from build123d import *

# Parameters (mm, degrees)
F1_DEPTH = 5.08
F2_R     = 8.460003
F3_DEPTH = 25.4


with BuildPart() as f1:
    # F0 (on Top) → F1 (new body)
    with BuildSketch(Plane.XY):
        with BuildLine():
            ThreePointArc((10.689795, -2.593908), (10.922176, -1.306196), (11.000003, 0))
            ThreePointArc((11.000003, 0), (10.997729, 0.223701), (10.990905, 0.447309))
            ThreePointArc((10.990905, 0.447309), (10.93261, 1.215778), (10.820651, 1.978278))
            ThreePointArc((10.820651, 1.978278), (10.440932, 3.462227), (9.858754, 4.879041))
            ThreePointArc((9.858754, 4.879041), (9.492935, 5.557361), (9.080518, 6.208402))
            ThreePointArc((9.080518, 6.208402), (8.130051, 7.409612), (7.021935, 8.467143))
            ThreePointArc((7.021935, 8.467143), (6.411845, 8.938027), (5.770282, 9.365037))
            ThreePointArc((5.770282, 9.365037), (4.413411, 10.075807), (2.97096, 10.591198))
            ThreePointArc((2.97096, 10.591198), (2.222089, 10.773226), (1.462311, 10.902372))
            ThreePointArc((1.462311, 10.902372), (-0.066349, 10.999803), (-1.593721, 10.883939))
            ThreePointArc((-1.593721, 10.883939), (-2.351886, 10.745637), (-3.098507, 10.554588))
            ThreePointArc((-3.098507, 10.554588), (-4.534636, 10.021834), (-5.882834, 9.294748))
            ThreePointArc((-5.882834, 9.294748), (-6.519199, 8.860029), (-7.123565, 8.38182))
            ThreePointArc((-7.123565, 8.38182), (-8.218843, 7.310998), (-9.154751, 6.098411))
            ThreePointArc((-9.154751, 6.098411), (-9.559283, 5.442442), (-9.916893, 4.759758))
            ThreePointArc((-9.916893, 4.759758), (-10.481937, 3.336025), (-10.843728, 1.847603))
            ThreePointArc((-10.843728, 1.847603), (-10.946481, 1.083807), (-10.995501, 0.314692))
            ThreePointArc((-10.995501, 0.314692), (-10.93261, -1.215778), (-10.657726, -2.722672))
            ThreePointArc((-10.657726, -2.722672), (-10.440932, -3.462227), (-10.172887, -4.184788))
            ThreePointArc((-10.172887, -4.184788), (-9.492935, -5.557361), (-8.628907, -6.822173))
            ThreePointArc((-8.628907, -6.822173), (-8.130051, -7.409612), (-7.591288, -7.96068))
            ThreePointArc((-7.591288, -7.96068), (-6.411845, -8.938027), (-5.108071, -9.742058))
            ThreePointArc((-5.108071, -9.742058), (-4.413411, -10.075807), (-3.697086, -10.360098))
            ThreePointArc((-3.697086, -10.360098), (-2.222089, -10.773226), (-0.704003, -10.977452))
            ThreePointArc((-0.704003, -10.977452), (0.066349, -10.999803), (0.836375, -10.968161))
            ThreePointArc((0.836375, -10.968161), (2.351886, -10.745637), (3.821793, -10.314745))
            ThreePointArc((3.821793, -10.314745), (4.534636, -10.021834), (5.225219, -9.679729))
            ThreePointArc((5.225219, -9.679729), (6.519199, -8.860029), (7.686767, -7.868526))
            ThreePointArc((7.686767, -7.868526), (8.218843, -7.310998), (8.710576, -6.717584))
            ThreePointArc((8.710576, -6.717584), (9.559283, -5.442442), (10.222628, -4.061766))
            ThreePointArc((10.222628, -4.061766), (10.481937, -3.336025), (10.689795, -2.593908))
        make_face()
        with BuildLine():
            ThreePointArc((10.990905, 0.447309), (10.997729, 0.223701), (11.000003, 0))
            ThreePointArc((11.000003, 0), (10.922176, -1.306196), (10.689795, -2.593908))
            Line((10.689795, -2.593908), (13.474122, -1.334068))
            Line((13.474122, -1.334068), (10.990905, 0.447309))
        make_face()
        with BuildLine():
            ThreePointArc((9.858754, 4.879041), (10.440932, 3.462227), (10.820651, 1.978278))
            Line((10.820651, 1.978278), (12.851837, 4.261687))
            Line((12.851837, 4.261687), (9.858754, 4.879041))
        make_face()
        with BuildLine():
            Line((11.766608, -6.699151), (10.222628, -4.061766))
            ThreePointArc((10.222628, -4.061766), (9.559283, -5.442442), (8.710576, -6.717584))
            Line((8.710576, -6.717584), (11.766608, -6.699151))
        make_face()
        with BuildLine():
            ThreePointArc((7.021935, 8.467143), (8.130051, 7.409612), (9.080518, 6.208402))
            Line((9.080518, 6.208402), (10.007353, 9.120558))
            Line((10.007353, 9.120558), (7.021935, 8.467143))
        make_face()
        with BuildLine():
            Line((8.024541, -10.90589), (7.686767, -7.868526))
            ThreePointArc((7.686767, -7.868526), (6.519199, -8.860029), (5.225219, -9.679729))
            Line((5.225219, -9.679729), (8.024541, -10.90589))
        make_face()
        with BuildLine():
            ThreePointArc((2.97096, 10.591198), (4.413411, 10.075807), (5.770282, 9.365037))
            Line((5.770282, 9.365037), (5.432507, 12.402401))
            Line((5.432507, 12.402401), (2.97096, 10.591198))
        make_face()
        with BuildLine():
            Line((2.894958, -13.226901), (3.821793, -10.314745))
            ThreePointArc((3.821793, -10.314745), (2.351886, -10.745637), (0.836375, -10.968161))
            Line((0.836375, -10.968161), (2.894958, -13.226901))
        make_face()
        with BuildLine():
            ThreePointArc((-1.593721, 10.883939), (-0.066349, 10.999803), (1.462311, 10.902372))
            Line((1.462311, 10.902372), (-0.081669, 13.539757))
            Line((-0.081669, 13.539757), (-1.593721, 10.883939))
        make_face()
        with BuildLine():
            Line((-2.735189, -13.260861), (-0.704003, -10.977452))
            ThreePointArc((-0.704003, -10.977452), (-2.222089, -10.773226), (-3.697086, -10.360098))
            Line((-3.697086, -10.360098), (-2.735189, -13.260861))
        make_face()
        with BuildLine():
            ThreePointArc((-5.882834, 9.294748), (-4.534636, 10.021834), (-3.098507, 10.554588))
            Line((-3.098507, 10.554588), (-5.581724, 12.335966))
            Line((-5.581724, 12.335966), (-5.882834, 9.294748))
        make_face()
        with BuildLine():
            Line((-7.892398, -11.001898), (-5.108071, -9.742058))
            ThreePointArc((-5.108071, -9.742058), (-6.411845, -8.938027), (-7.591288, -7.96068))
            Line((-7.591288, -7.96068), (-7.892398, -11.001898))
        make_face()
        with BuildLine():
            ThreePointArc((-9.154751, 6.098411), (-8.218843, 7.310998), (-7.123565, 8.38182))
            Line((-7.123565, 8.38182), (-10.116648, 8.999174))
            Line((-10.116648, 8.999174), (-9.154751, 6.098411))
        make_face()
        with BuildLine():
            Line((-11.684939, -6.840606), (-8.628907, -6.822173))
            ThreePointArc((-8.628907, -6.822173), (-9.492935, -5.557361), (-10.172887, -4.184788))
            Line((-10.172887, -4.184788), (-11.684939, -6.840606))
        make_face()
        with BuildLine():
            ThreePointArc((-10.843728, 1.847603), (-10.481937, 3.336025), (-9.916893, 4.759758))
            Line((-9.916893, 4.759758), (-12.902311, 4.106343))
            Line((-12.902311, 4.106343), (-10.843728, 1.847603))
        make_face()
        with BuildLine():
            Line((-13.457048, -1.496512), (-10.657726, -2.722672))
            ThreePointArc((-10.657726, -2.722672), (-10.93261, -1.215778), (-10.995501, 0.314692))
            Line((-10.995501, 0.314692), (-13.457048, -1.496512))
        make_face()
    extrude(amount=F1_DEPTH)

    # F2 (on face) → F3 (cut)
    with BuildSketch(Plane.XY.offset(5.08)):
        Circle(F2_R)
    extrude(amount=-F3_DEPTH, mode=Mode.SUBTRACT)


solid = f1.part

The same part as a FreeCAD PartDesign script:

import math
import FreeCAD as App
import Part
import Sketcher
from FreeCAD import Vector
Q = App.Units.Quantity

doc = App.newDocument("Part")
params = doc.addObject("Spreadsheet::Sheet", "Params")
for row, (alias, value) in enumerate([
    ("pad1_length", "0.2 in"),
    ("pocket1_length", "1 in"),
], start=1):
    params.set(f"A{row}", alias)
    params.set(f"B{row}", "=" + value)
    params.setAlias(f"B{row}", alias)

body = doc.addObject("PartDesign::Body", "Body")

# Sketch on XY plane
sketch1 = body.newObject("Sketcher::SketchObject", "Sketch")
sketch1.AttachmentSupport = (doc.getObject("XY_Plane"), [""])
sketch1.MapMode = "FlatFace"
sketch1.addGeometry([
    Part.ArcOfCircle(Part.Circle(Vector(0.000048, 0.000003, 0), Vector(0, 0, 1), 10.999956), math.radians(2.330536), math.radians(10.360666)),  # 0
    Part.LineSegment(Vector(10.820651, 1.978278, 0), Vector(12.851837, 4.261687, 0)),  # 1
    Part.LineSegment(Vector(12.851837, 4.261687, 0), Vector(9.858754, 4.879041, 0)),  # 2
    Part.ArcOfCircle(Part.Circle(Vector(0.000148, 0.000083, 0), Vector(0, 0, 1), 10.999834), math.radians(26.330498), math.radians(34.360716)),  # 3
    Part.LineSegment(Vector(9.080518, 6.208402, 0), Vector(10.007353, 9.120558, 0)),  # 4
    Part.LineSegment(Vector(10.007353, 9.120558, 0), Vector(7.021935, 8.467143, 0)),  # 5
    Part.ArcOfCircle(Part.Circle(Vector(0.000066, 0.000087, 0), Vector(0, 0, 1), 10.999894), math.radians(50.330524), math.radians(58.360692)),  # 6
    Part.LineSegment(Vector(5.770282, 9.365037, 0), Vector(5.432507, 12.402401, 0)),  # 7
    Part.LineSegment(Vector(5.432507, 12.402401, 0), Vector(2.97096, 10.591198, 0)),  # 8
    Part.ArcOfCircle(Part.Circle(Vector(0.00002, 0.00008, 0), Vector(0, 0, 1), 10.999922), math.radians(74.330532), math.radians(82.360684)),  # 9
    Part.LineSegment(Vector(1.462311, 10.902372, 0), Vector(-0.081669, 13.539757, 0)),  # 10
    Part.LineSegment(Vector(-0.081669, 13.539757, 0), Vector(-1.593721, 10.883939, 0)),  # 11
    Part.ArcOfCircle(Part.Circle(Vector(-0.000032, 0.000148, 0), Vector(0, 0, 1), 10.999853), math.radians(98.330491), math.radians(106.360697)),  # 12
    Part.LineSegment(Vector(-3.098507, 10.554588, 0), Vector(-5.581724, 12.335966, 0)),  # 13
    Part.LineSegment(Vector(-5.581724, 12.335966, 0), Vector(-5.882834, 9.294748, 0)),  # 14
    Part.ArcOfCircle(Part.Circle(Vector(0.000119, -0.000167, 0), Vector(0, 0, 1), 11.000208), math.radians(122.330607), math.radians(130.36055)),  # 15
    Part.LineSegment(Vector(-7.123565, 8.38182, 0), Vector(-10.116648, 8.999174, 0)),  # 16
    Part.LineSegment(Vector(-10.116648, 8.999174, 0), Vector(-9.154751, 6.098411, 0)),  # 17
    Part.ArcOfCircle(Part.Circle(Vector(0.000106, -0.000053, 0), Vector(0, 0, 1), 11.000121), math.radians(146.330622), math.radians(154.360631)),  # 18
    Part.LineSegment(Vector(-9.916893, 4.759758, 0), Vector(-12.902311, 4.106343, 0)),  # 19
    Part.LineSegment(Vector(-12.902311, 4.106343, 0), Vector(-10.843728, 1.847603, 0)),  # 20
    Part.ArcOfCircle(Part.Circle(Vector(-0.000191, 0.000019, 0), Vector(0, 0, 1), 10.999812), math.radians(170.330476), math.radians(178.360709)),  # 21
    Part.LineSegment(Vector(-10.995501, 0.314692, 0), Vector(-13.457048, -1.496512, 0)),  # 22
    Part.LineSegment(Vector(-13.457048, -1.496512, 0), Vector(-10.657726, -2.722672, 0)),  # 23
    Part.ArcOfCircle(Part.Circle(Vector(-0.000059, -0.000024, 0), Vector(0, 0, 1), 10.99994), math.radians(-165.669502), math.radians(-157.639362)),  # 24
    Part.LineSegment(Vector(-10.172887, -4.184788, 0), Vector(-11.684939, -6.840606, 0)),  # 25
    Part.LineSegment(Vector(-11.684939, -6.840606, 0), Vector(-8.628907, -6.822173, 0)),  # 26
    Part.ArcOfCircle(Part.Circle(Vector(0.00001, 0.00001, 0), Vector(0, 0, 1), 11.000018), math.radians(-141.669447), math.radians(-133.639364)),  # 27
    Part.LineSegment(Vector(-7.591288, -7.96068, 0), Vector(-7.892398, -11.001898, 0)),  # 28
    Part.LineSegment(Vector(-7.892398, -11.001898, 0), Vector(-5.108071, -9.742058, 0)),  # 29
    Part.ArcOfCircle(Part.Circle(Vector(-0.000031, -0.000065, 0), Vector(0, 0, 1), 10.999931), math.radians(-117.669466), math.radians(-109.639319)),  # 30
    Part.LineSegment(Vector(-3.697086, -10.360098, 0), Vector(-2.735189, -13.260861, 0)),  # 31
    Part.LineSegment(Vector(-2.735189, -13.260861, 0), Vector(-0.704003, -10.977452, 0)),  # 32
    Part.ArcOfCircle(Part.Circle(Vector(0.000001, 0.000139, 0), Vector(0, 0, 1), 11.000142), math.radians(-93.669412), math.radians(-85.639422)),  # 33
    Part.LineSegment(Vector(0.836375, -10.968161, 0), Vector(2.894958, -13.226901, 0)),  # 34
    Part.LineSegment(Vector(2.894958, -13.226901, 0), Vector(3.821793, -10.314745, 0)),  # 35
    Part.ArcOfCircle(Part.Circle(Vector(0.000105, -0.000232, 0), Vector(0, 0, 1), 10.999749), math.radians(-69.669548), math.radians(-61.639271)),  # 36
    Part.LineSegment(Vector(5.225219, -9.679729, 0), Vector(8.024541, -10.90589, 0)),  # 37
    Part.LineSegment(Vector(8.024541, -10.90589, 0), Vector(7.686767, -7.868526, 0)),  # 38
    Part.ArcOfCircle(Part.Circle(Vector(-0.000096, 0.000077, 0), Vector(0, 0, 1), 11.000127), math.radians(-45.669376), math.radians(-37.639372)),  # 39
    Part.LineSegment(Vector(8.710576, -6.717584, 0), Vector(11.766608, -6.699151, 0)),  # 40
    Part.LineSegment(Vector(11.766608, -6.699151, 0), Vector(10.222628, -4.061766, 0)),  # 41
    Part.ArcOfCircle(Part.Circle(Vector(-0.000087, 0.000031, 0), Vector(0, 0, 1), 11.000095), math.radians(-21.669436), math.radians(-13.639409)),  # 42
    Part.LineSegment(Vector(10.689795, -2.593908, 0), Vector(13.474122, -1.334068, 0)),  # 43
    Part.LineSegment(Vector(13.474122, -1.334068, 0), Vector(10.990905, 0.447309, 0)),  # 44
], False)
sketch1.addConstraint([
    Sketcher.Constraint("Coincident", 0, 2, 1, 1),
    Sketcher.Constraint("Coincident", 1, 2, 2, 1),
    Sketcher.Constraint("Coincident", 2, 2, 3, 1),
    Sketcher.Constraint("Coincident", 3, 2, 4, 1),
    Sketcher.Constraint("Coincident", 4, 2, 5, 1),
    Sketcher.Constraint("Coincident", 5, 2, 6, 1),
    Sketcher.Constraint("Coincident", 6, 2, 7, 1),
    Sketcher.Constraint("Coincident", 7, 2, 8, 1),
    Sketcher.Constraint("Coincident", 8, 2, 9, 1),
    Sketcher.Constraint("Coincident", 9, 2, 10, 1),
    Sketcher.Constraint("Coincident", 10, 2, 11, 1),
    Sketcher.Constraint("Coincident", 11, 2, 12, 1),
    Sketcher.Constraint("Coincident", 12, 2, 13, 1),
    Sketcher.Constraint("Coincident", 13, 2, 14, 1),
    Sketcher.Constraint("Coincident", 14, 2, 15, 1),
    Sketcher.Constraint("Coincident", 15, 2, 16, 1),
    Sketcher.Constraint("Coincident", 16, 2, 17, 1),
    Sketcher.Constraint("Coincident", 17, 2, 18, 1),
    Sketcher.Constraint("Coincident", 18, 2, 19, 1),
    Sketcher.Constraint("Coincident", 19, 2, 20, 1),
    Sketcher.Constraint("Coincident", 20, 2, 21, 1),
    Sketcher.Constraint("Coincident", 21, 2, 22, 1),
    Sketcher.Constraint("Coincident", 22, 2, 23, 1),
    Sketcher.Constraint("Coincident", 23, 2, 24, 1),
    Sketcher.Constraint("Coincident", 24, 2, 25, 1),
    Sketcher.Constraint("Coincident", 25, 2, 26, 1),
    Sketcher.Constraint("Coincident", 26, 2, 27, 1),
    Sketcher.Constraint("Coincident", 27, 2, 28, 1),
    Sketcher.Constraint("Coincident", 28, 2, 29, 1),
    Sketcher.Constraint("Coincident", 29, 2, 30, 1),
    Sketcher.Constraint("Coincident", 30, 2, 31, 1),
    Sketcher.Constraint("Coincident", 31, 2, 32, 1),
    Sketcher.Constraint("Coincident", 32, 2, 33, 1),
    Sketcher.Constraint("Coincident", 33, 2, 34, 1),
    Sketcher.Constraint("Coincident", 34, 2, 35, 1),
    Sketcher.Constraint("Coincident", 35, 2, 36, 1),
    Sketcher.Constraint("Coincident", 36, 2, 37, 1),
    Sketcher.Constraint("Coincident", 37, 2, 38, 1),
    Sketcher.Constraint("Coincident", 38, 2, 39, 1),
    Sketcher.Constraint("Coincident", 39, 2, 40, 1),
    Sketcher.Constraint("Coincident", 40, 2, 41, 1),
    Sketcher.Constraint("Coincident", 41, 2, 42, 1),
    Sketcher.Constraint("Coincident", 42, 2, 43, 1),
    Sketcher.Constraint("Coincident", 43, 2, 44, 1),
    Sketcher.Constraint("Coincident", 44, 2, 0, 1),
    Sketcher.Constraint("PointOnObject", 33, 3, -2),
    Sketcher.Constraint("Radius", 9, 10.999922),
    Sketcher.Constraint("Radius", 18, 11.000121),
    Sketcher.Constraint("Radius", 24, 10.99994),
    Sketcher.Constraint("Radius", 30, 10.999931),
    Sketcher.Constraint("Radius", 36, 10.999749),
    Sketcher.Constraint("Radius", 0, 10.999956),
    Sketcher.Constraint("Radius", 3, 10.999834),
    Sketcher.Constraint("Radius", 6, 10.999894),
    Sketcher.Constraint("Radius", 12, 10.999853),
    Sketcher.Constraint("Radius", 15, 11.000208),
    Sketcher.Constraint("Radius", 21, 10.999812),
    Sketcher.Constraint("Radius", 27, 11.000018),
    Sketcher.Constraint("Radius", 33, 11.000142),
    Sketcher.Constraint("Radius", 39, 11.000127),
    Sketcher.Constraint("Radius", 42, 11.000095),
    Sketcher.Constraint("DistanceY", 14, 2, 12, 2, Q("0.0496 in")),
    Sketcher.Constraint("DistanceY", 28, 2, 29, 2, Q("0.0496 in")),
    Sketcher.Constraint("DistanceY", 42, 2, 43, 2, Q("0.0496 in")),
    Sketcher.Constraint("DistanceY", -1, 1, 3, 2, 6.208402),
    Sketcher.Constraint("DistanceY", -1, 1, 7, 2, 12.402401),
    Sketcher.Constraint("DistanceX", 21, 2, -1, 1, 10.995501),
    Sketcher.Constraint("DistanceY", 28, 2, -1, 1, 11.001898),
    Sketcher.Constraint("DistanceY", 30, 2, -1, 1, 10.360098),
    Sketcher.Constraint("DistanceY", 34, 2, -1, 1, 13.226901),
    Sketcher.Constraint("DistanceX", 0, 3, 3, 3, 0.0001),
    Sketcher.Constraint("DistanceY", 24, 3, 39, 3, 0.000102),
    Sketcher.Constraint("DistanceY", 6, 3, 1, 2, 4.2616),
    Sketcher.Constraint("DistanceX", 2, 2, 4, 2, 0.148599),
    Sketcher.Constraint("DistanceX", 5, 2, 1, 2, 5.829902),
    Sketcher.Constraint("DistanceY", 25, 2, 21, 2, 7.155298),
    Sketcher.Constraint("DistanceY", 26, 2, 23, 2, 4.099501),
    Sketcher.Constraint("DistanceX", 24, 2, 27, 2, 2.581599),
    Sketcher.Constraint("DistanceX", 27, 2, 30, 2, 3.894202),
    Sketcher.Constraint("DistanceX", 27, 2, 31, 2, 4.856099),
    Sketcher.Constraint("DistanceY", 31, 2, 33, 2, 2.2927),
    Sketcher.Constraint("DistanceY", 41, 2, 43, 2, 2.727698),
    Sketcher.Constraint("Distance", 4, 3.056088),
    Sketcher.Constraint("Distance", 10, 3.056088),
    Sketcher.Constraint("Distance", 13, 3.056088),
    Sketcher.Constraint("Distance", 14, 3.056088),
    Sketcher.Constraint("Distance", 28, 3.056088),
    Sketcher.Constraint("Distance", 35, 3.056088),
    Sketcher.Constraint("Distance", 37, 3.056088),
    Sketcher.Constraint("Distance", 41, 3.056088),
    Sketcher.Constraint("DistanceX", -1, 1, 3, 3, 0.000148),
    Sketcher.Constraint("DistanceX", -1, 1, 15, 3, 0.000119),
    Sketcher.Constraint("DistanceX", 21, 3, -1, 1, 0.000191),
    Sketcher.Constraint("DistanceY", -1, 1, 33, 3, 0.000139),
    Sketcher.Constraint("DistanceY", 36, 3, -1, 1, 0.000232),
    Sketcher.Constraint("DistanceX", -1, 1, 0, 2, 10.820651),
    Sketcher.Constraint("DistanceY", -1, 1, 2, 2, 4.879041),
    Sketcher.Constraint("DistanceY", -1, 1, 4, 2, 9.120558),
    Sketcher.Constraint("DistanceX", -1, 1, 6, 2, 5.770282),
    Sketcher.Constraint("DistanceX", -1, 1, 8, 2, 2.97096),
    Sketcher.Constraint("DistanceX", -1, 1, 9, 2, 1.462311),
    Sketcher.Constraint("DistanceY", -1, 1, 9, 2, 10.902372),
    Sketcher.Constraint("DistanceX", 10, 2, -1, 1, 0.081669),
    Sketcher.Constraint("DistanceX", 11, 2, -1, 1, 1.593721),
    Sketcher.Constraint("DistanceY", -1, 1, 11, 2, 10.883939),
    Sketcher.Constraint("DistanceY", -1, 1, 15, 2, 8.38182),
    Sketcher.Constraint("DistanceX", 17, 2, -1, 1, 9.154751),
    Sketcher.Constraint("DistanceY", -1, 1, 17, 2, 6.098411),
    Sketcher.Constraint("DistanceY", -1, 1, 18, 2, 4.759758),
    Sketcher.Constraint("DistanceX", 19, 2, -1, 1, 12.902311),
    Sketcher.Constraint("DistanceY", 24, 2, -1, 1, 4.184788),
    Sketcher.Constraint("DistanceX", 25, 2, -1, 1, 11.684939),
    Sketcher.Constraint("DistanceY", 27, 2, -1, 1, 7.96068),
    Sketcher.Constraint("DistanceX", 29, 2, -1, 1, 5.108071),
    Sketcher.Constraint("DistanceX", 31, 2, -1, 1, 2.735189),
    Sketcher.Constraint("DistanceY", 31, 2, -1, 1, 13.260861),
    Sketcher.Constraint("DistanceX", -1, 1, 36, 2, 5.225219),
    Sketcher.Constraint("DistanceY", 36, 2, -1, 1, 9.679729),
    Sketcher.Constraint("DistanceX", -1, 1, 37, 2, 8.024541),
    Sketcher.Constraint("DistanceY", 40, 2, -1, 1, 6.699151),
    Sketcher.Constraint("DistanceY", -1, 1, 44, 2, 0.447309),
    Sketcher.Constraint("DistanceX", 9, 3, 3, 3, 0.000128),
    Sketcher.Constraint("DistanceX", 12, 3, 3, 3, 0.00018),
    Sketcher.Constraint("DistanceY", 15, 3, 0, 3, 0.00017),
    Sketcher.Constraint("DistanceY", 15, 3, 3, 3, 0.00025),
    Sketcher.Constraint("DistanceY", 18, 3, 6, 3, 0.00014),
    Sketcher.Constraint("DistanceY", 21, 3, 12, 3, 0.000129),
    Sketcher.Constraint("DistanceY", 24, 3, 6, 3, 0.000111),
    Sketcher.Constraint("DistanceY", 27, 3, 33, 3, 0.00013),
    Sketcher.Constraint("DistanceY", 36, 3, 18, 3, 0.000179),
    Sketcher.Constraint("DistanceX", 3, 3, 1, 2, 12.851689),
    Sketcher.Constraint("DistanceX", 6, 3, 1, 2, 12.851771),
    Sketcher.Constraint("DistanceX", 7, 2, 3, 2, 3.648011),
    Sketcher.Constraint("DistanceY", 12, 2, 11, 2, 0.329351),
    Sketcher.Constraint("DistanceX", 16, 2, 12, 2, 7.018141),
    Sketcher.Constraint("DistanceY", 19, 2, 16, 2, 4.892831),
    Sketcher.Constraint("DistanceY", 20, 2, 19, 2, 2.25874),
    Sketcher.Constraint("DistanceX", 20, 2, 16, 2, 0.72708),
    Sketcher.Constraint("DistanceX", 22, 2, 20, 2, 2.61332),
    Sketcher.Constraint("DistanceY", 22, 2, 18, 2, 6.25627),
    Sketcher.Constraint("DistanceY", 23, 2, 22, 2, 1.22616),
    Sketcher.Constraint("DistanceY", 31, 2, 32, 2, 2.283409),
    Sketcher.Constraint("DistanceX", 32, 2, 34, 2, 3.598961),
    Sketcher.Constraint("DistanceX", 36, 2, 38, 2, 2.461548),
    Sketcher.Constraint("DistanceY", 35, 2, 38, 2, 2.446219),
    Sketcher.Constraint("DistanceX", 38, 2, 39, 2, 1.023809),
    Sketcher.Constraint("DistanceX", 39, 2, 40, 2, 3.056032),
    Sketcher.Constraint("DistanceX", 39, 2, 41, 2, 1.512052),
    Sketcher.Constraint("DistanceX", 39, 2, 42, 2, 1.979219),
    Sketcher.Constraint("DistanceX", 0, 2, 43, 2, 2.653471),
])
pad1 = body.newObject("PartDesign::Pad", "Pad")
pad1.Profile = sketch1
pad1.setExpression("Length", "Params.pad1_length")

# Sketch on XY plane
sketch2 = body.newObject("Sketcher::SketchObject", "Sketch001")
sketch2.AttachmentSupport = (doc.getObject("XY_Plane"), [""])
sketch2.MapMode = "FlatFace"
sketch2.AttachmentOffset = App.Placement(Vector(0, 0, 0.2 * 25.4), App.Rotation())
sketch2.addGeometry(Part.Circle(Vector(0, 0, 0), Vector(0, 0, 1), 8.460003), False)
sketch2.addConstraint([
    Sketcher.Constraint("Coincident", 0, 3, -1, 1),
    Sketcher.Constraint("Diameter", 0, 16.920006),
])
pocket1 = body.newObject("PartDesign::Pocket", "Pocket")
pocket1.Profile = sketch2
pocket1.setExpression("Length", "Params.pocket1_length")

doc.recompute()
